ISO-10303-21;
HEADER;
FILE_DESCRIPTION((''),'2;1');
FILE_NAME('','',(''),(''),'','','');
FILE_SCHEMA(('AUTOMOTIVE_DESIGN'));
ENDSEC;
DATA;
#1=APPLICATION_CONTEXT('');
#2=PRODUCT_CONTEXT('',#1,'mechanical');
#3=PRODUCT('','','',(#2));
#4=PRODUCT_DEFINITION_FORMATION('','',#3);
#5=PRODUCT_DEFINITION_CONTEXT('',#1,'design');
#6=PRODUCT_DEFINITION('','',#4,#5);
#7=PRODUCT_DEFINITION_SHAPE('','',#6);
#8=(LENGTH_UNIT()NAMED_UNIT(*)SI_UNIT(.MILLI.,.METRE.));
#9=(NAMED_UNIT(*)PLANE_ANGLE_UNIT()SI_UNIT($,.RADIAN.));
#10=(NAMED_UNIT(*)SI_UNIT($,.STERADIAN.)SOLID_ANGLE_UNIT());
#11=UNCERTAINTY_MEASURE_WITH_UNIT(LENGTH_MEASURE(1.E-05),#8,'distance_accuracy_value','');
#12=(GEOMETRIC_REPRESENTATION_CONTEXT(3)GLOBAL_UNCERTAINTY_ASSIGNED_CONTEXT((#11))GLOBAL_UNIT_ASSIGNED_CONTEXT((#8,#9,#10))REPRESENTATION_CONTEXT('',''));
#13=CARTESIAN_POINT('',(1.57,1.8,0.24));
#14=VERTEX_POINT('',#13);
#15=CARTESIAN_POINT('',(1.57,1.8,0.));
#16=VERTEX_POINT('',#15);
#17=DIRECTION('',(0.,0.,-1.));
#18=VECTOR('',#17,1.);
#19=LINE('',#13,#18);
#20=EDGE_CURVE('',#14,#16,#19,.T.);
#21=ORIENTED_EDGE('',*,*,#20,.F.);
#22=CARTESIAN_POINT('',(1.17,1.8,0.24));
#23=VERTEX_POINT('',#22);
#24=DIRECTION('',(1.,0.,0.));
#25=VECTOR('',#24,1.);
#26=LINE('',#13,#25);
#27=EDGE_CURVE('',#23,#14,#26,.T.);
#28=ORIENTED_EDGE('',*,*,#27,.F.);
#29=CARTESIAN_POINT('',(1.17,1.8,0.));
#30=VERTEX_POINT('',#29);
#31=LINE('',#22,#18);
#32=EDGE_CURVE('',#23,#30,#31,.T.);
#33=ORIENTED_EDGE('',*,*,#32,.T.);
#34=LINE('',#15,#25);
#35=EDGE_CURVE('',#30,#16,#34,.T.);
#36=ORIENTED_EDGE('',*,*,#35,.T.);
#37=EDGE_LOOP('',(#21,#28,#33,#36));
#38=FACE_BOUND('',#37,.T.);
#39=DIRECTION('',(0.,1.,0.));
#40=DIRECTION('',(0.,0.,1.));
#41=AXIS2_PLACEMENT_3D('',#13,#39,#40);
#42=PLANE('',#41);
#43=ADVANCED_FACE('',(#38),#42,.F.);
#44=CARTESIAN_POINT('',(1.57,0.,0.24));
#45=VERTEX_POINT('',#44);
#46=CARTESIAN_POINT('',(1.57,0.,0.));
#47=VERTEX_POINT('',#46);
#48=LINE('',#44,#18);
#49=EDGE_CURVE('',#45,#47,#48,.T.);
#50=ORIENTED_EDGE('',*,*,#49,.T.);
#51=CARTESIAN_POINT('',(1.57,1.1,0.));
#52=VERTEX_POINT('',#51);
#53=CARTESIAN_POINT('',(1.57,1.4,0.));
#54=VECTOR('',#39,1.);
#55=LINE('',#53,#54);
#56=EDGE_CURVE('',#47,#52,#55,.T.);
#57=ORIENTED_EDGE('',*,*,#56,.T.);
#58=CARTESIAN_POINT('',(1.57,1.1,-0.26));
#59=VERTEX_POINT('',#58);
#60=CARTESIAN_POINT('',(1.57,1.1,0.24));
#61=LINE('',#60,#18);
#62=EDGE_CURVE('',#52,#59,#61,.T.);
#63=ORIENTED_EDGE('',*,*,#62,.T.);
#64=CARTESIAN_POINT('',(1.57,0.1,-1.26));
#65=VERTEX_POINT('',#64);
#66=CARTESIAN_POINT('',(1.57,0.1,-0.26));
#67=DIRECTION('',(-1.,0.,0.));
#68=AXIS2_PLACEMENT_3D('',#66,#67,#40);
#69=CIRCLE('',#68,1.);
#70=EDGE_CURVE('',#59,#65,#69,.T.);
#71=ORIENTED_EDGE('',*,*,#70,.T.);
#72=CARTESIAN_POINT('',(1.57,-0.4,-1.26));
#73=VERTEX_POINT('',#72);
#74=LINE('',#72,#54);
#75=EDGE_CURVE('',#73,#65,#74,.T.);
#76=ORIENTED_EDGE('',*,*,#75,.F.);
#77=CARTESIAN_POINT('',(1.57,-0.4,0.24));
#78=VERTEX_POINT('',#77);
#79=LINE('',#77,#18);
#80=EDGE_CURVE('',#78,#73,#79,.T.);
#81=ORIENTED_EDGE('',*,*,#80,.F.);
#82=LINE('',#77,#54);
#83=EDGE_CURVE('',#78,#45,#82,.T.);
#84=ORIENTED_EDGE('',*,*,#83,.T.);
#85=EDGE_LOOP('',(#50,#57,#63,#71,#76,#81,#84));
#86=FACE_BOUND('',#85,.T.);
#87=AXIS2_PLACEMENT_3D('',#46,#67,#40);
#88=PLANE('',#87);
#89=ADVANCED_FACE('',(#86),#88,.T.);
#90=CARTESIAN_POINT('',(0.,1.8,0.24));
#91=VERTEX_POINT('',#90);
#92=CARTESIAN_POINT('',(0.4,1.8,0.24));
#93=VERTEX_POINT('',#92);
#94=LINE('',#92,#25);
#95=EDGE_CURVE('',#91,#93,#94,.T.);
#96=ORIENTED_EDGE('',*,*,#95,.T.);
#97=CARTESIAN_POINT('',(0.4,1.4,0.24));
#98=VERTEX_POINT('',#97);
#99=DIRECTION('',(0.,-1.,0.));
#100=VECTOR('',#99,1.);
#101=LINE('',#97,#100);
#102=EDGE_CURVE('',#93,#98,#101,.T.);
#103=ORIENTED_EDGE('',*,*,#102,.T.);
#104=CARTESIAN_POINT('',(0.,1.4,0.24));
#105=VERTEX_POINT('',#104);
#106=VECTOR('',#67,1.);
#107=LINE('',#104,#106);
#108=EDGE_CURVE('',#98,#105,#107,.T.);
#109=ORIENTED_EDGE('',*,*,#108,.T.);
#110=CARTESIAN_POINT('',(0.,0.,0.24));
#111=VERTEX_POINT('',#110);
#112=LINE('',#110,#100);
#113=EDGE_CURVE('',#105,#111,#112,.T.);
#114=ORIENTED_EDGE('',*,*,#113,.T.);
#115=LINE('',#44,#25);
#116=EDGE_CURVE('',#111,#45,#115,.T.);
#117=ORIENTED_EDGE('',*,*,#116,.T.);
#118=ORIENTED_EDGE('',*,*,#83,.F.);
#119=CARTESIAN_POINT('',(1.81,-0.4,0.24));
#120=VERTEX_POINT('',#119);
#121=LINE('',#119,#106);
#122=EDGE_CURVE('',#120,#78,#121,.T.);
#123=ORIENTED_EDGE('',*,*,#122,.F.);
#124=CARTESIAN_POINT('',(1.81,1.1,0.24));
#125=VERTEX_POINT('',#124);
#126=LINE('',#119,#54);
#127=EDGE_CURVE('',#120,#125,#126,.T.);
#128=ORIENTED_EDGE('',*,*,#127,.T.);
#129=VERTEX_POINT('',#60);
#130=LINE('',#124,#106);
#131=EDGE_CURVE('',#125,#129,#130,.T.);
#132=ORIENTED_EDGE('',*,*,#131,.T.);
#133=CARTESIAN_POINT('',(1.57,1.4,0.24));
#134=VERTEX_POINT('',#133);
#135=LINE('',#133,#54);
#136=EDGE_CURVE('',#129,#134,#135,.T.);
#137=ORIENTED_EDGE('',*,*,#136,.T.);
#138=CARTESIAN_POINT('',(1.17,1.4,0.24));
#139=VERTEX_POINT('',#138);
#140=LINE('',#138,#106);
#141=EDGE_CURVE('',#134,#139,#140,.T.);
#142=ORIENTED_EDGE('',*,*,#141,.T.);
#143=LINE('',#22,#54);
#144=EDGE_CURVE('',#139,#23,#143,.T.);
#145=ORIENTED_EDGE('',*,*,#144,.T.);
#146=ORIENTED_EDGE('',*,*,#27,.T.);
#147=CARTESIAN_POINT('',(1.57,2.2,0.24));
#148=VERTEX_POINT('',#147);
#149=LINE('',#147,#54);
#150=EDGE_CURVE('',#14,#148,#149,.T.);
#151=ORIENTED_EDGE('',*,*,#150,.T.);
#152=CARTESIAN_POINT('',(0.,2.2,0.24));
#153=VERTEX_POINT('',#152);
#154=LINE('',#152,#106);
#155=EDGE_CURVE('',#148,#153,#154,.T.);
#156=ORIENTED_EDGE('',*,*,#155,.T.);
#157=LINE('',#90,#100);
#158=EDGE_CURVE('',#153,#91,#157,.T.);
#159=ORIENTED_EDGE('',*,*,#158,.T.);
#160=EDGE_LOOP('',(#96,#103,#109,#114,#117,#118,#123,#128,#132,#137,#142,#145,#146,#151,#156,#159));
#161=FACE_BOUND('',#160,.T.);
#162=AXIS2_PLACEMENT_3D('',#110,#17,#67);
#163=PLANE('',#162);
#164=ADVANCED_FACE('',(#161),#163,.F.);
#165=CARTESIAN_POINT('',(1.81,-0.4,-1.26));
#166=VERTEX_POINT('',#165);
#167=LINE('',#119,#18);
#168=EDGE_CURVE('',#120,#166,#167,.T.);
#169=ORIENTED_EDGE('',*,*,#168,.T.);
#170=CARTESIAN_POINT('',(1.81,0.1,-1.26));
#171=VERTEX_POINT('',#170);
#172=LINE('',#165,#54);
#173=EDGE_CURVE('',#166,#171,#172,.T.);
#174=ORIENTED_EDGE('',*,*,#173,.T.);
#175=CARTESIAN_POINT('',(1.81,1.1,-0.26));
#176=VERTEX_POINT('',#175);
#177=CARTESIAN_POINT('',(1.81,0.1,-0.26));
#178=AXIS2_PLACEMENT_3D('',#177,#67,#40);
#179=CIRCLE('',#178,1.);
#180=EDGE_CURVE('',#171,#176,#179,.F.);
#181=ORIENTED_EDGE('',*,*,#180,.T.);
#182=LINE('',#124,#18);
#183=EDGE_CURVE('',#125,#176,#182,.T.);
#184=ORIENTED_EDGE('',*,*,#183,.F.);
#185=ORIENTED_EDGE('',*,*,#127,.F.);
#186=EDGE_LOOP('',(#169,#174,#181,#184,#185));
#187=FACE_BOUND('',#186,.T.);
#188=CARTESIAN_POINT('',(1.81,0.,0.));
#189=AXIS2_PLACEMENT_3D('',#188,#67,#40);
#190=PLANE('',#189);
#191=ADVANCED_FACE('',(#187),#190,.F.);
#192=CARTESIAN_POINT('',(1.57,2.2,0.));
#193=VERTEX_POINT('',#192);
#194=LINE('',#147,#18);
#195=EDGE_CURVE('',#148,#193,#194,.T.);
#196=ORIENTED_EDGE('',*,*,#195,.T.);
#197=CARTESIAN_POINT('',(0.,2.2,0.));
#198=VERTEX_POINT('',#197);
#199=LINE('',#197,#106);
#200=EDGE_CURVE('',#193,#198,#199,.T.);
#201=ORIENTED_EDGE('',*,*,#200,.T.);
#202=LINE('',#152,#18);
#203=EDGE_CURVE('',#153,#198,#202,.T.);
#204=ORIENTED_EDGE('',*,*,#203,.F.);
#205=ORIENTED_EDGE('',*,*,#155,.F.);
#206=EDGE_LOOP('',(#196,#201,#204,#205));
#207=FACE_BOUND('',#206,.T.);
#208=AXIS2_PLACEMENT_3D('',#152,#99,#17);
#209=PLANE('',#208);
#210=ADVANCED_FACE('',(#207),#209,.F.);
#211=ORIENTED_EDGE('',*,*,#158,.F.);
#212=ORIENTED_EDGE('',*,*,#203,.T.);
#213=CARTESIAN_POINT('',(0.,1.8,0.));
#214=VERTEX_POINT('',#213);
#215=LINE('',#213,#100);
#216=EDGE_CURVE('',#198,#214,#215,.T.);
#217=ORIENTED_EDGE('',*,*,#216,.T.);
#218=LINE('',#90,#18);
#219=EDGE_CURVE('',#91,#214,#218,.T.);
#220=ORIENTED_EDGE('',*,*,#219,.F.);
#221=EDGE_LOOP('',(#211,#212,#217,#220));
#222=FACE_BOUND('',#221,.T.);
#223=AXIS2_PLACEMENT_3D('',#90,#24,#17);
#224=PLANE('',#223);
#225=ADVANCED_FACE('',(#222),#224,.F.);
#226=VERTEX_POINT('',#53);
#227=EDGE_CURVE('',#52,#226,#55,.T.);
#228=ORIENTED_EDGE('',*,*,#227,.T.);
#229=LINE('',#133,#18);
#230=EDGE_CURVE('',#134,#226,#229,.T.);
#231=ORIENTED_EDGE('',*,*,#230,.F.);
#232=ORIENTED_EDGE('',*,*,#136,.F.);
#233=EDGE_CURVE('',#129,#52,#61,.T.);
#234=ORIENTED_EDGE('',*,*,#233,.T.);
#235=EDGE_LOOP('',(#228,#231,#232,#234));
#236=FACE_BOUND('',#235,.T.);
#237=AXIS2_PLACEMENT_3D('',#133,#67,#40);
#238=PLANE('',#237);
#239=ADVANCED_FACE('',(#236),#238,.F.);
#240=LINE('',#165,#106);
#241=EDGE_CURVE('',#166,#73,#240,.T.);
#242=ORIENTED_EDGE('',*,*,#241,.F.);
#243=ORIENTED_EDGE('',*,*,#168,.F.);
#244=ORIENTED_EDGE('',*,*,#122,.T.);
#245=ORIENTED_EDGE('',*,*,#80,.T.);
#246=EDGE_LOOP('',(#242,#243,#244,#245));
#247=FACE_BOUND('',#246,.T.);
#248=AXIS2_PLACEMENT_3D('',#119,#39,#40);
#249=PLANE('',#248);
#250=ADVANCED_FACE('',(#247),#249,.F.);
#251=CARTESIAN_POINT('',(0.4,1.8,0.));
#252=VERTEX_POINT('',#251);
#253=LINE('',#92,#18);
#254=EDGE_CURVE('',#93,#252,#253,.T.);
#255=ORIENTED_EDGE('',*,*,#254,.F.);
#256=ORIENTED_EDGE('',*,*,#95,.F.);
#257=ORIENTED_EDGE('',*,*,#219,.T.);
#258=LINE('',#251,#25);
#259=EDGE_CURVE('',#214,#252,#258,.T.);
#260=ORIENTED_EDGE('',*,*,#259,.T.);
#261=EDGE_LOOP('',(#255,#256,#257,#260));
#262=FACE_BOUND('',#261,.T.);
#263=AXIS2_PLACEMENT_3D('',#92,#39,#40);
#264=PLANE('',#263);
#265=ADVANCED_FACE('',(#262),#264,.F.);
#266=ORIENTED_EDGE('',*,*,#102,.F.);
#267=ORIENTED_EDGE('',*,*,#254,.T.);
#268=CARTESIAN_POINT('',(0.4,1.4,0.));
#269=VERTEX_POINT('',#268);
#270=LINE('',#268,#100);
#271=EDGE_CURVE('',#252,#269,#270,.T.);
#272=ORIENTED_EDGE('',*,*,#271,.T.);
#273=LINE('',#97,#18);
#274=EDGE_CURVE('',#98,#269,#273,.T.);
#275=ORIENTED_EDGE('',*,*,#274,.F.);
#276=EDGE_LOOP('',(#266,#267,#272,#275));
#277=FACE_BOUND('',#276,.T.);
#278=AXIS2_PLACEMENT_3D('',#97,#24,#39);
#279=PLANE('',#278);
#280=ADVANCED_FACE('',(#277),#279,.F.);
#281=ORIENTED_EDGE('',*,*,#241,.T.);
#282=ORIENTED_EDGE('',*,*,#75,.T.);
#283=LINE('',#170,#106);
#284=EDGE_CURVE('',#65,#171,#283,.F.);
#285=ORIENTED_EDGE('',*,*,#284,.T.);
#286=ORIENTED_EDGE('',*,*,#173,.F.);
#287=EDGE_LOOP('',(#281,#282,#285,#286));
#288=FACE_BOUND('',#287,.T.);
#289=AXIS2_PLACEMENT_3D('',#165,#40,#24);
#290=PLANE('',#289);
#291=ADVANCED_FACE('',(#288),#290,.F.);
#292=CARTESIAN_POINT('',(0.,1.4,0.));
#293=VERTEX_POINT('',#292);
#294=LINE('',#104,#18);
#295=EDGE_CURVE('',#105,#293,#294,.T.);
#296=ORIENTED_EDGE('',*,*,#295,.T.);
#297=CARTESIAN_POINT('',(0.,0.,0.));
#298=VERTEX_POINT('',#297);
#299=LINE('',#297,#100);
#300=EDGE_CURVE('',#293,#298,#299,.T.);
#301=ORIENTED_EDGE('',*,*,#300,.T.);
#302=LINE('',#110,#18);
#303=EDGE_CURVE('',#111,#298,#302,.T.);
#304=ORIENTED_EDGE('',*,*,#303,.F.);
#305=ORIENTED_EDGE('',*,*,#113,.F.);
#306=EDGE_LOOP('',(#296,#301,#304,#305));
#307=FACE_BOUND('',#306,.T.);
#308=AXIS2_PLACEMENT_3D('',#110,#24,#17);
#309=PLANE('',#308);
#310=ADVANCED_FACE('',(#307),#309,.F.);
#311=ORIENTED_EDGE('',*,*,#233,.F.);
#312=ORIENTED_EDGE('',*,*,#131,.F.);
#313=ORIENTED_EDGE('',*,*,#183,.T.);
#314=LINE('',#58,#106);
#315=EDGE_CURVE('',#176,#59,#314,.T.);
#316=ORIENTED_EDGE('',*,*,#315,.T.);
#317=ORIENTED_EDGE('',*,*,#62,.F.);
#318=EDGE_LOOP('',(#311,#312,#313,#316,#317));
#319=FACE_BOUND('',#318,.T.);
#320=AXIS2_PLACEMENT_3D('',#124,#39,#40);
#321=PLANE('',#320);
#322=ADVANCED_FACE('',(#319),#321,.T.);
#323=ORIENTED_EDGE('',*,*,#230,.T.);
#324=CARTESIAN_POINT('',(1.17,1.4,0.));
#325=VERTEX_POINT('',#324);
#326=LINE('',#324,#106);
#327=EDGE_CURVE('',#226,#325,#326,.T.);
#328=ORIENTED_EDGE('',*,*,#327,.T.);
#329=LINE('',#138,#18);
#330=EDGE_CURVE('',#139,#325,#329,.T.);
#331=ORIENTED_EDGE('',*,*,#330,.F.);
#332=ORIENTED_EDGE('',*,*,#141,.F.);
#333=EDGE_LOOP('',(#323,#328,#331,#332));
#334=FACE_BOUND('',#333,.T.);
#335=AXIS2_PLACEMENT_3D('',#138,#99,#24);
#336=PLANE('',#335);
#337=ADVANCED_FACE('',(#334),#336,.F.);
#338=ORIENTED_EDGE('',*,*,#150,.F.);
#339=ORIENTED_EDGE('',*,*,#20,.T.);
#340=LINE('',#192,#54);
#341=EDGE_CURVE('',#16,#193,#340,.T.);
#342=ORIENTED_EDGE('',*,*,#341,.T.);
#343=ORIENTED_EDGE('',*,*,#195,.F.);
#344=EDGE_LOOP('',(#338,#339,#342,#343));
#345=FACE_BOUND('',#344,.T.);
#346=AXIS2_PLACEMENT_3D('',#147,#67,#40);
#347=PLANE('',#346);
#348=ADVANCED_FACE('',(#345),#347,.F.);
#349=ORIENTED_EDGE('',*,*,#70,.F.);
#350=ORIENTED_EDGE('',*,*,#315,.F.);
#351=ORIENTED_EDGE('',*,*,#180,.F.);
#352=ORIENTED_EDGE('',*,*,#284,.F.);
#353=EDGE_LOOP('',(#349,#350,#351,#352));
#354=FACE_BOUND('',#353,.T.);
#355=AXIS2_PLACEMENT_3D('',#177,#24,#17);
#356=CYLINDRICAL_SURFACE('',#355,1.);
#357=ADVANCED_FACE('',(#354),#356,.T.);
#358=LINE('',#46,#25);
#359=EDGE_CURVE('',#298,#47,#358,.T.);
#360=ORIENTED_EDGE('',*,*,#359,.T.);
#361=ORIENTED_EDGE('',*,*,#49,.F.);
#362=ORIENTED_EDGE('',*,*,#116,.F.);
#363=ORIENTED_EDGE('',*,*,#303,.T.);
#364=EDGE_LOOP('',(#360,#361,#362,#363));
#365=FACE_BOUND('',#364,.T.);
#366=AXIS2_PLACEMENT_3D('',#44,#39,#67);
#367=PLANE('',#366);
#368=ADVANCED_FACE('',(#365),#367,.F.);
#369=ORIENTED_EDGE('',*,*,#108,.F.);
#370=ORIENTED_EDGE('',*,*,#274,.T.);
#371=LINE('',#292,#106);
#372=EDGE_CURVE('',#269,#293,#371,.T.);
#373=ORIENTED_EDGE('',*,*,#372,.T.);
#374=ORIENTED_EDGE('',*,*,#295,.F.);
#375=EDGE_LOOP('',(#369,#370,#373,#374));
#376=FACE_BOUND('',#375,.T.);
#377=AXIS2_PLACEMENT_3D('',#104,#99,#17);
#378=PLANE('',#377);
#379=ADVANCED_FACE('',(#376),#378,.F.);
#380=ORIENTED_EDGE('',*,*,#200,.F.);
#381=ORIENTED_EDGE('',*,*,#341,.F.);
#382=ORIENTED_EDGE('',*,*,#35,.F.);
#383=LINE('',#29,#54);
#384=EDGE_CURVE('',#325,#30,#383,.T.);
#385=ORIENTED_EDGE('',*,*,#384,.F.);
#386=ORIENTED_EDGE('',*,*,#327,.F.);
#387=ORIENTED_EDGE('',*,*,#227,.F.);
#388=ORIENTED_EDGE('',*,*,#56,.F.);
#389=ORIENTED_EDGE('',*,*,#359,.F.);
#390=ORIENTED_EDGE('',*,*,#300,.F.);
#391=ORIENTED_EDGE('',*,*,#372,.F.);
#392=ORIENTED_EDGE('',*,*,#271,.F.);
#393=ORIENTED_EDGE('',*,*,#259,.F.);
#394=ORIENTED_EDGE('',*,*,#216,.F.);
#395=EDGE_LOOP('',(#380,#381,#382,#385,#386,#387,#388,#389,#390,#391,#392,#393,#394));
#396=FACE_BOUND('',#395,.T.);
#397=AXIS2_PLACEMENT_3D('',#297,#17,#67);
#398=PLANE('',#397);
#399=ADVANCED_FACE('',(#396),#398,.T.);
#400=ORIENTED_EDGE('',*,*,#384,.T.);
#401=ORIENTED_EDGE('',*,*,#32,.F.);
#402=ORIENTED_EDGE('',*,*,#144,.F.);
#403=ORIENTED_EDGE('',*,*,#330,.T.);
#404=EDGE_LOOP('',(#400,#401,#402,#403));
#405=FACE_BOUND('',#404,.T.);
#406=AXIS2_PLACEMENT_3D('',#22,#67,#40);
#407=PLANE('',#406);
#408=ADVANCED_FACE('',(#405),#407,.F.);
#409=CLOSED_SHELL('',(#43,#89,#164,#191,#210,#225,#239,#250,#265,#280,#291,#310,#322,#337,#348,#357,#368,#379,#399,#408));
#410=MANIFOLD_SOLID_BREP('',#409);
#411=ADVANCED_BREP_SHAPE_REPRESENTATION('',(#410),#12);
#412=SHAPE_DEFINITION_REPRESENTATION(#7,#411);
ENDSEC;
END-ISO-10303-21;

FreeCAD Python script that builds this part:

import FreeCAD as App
import Part
import Sketcher

V = App.Vector


def edges_at(feature, points):
    """Names of the edges that pass closest to the given points."""
    edges = feature.Shape.Edges
    near = lambda p: min(range(len(edges)), key=lambda i: edges[i].distToShape(Part.Vertex(*p))[0])
    return sorted({f"Edge{near(p) + 1}" for p in points})


def add_polygon(sketch, points):
    """Adds a closed chain of lines whose ends are joined by coincident constraints."""
    first, n = sketch.GeometryCount, len(points)
    for a, b in zip(points, points[1:] + points[:1]):
        sketch.addGeometry(Part.LineSegment(App.Vector(*a, 0), App.Vector(*b, 0)), False)
    for i in range(n):
        sketch.addConstraint(Sketcher.Constraint("Coincident", first + i, 2, first + (i + 1) % n, 1))

doc = App.newDocument("Part")
body = doc.addObject("PartDesign::Body", "Body")

sketch1 = doc.addObject("Sketcher::SketchObject", "Sketch")
body.addObject(sketch1)
sketch1.AttachmentSupport = (doc.XY_Plane, [""])
sketch1.MapMode = "FlatFace"
add_polygon(sketch1, [(0, 1.4), (0, 0), (1.57, 0), (1.57, 1.4), (1.17, 1.4), (1.17, 1.8), (1.57, 1.8), (1.57, 2.2), (0, 2.2), (0, 1.8), (0.4, 1.8), (0.4, 1.4)])
sketch1.addConstraint([
    Sketcher.Constraint("Vertical", 0),
    Sketcher.Constraint("Horizontal", 1),
    Sketcher.Constraint("Vertical", 2),
    Sketcher.Constraint("Horizontal", 3),
    Sketcher.Constraint("Vertical", 4),
    Sketcher.Constraint("Horizontal", 5),
    Sketcher.Constraint("Vertical", 6),
    Sketcher.Constraint("Horizontal", 7),
    Sketcher.Constraint("Vertical", 8),
    Sketcher.Constraint("Horizontal", 9),
    Sketcher.Constraint("Vertical", 10),
    Sketcher.Constraint("Horizontal", 11),
    Sketcher.Constraint("Coincident", 0, 2, -1, 1),
    Sketcher.Constraint("PointOnObject", 7, 2, -2),
    Sketcher.Constraint("Horizontal", 5, 2, 8, 2),
    Sketcher.Constraint("Horizontal", 3, 2, 10, 2),
    Sketcher.Constraint("Vertical", 2, 2, 5, 2),
    Sketcher.Constraint("Equal", 5, 9),
    Sketcher.Constraint("Equal", 11, 4),
    Sketcher.Constraint("Equal", 4, 6),
    Sketcher.Constraint("DistanceX", 3, 2, 3, 1, 0.4),
    Sketcher.Constraint("DistanceY", 0, 2, 0, 1, 1.4),
    Sketcher.Constraint("DistanceX", 1, 1, 1, 2, 1.57),
])
pad1 = doc.addObject("PartDesign::Pad", "Pad")
body.addObject(pad1)
pad1.Profile = sketch1
pad1.Length = 0.24

sketch2 = doc.addObject("Sketcher::SketchObject", "Sketch001")
body.addObject(sketch2)
sketch2.AttachmentSupport = (doc.YZ_Plane, [""])
sketch2.MapMode = "FlatFace"
sketch2.AttachmentOffset = App.Placement(V(0, 0, 1.57), App.Rotation())
add_polygon(sketch2, [(1.1, 0.2), (-0.4, 0.2), (-0.4, -1.3), (1.1, -1.3)])
sketch2.addConstraint([
    Sketcher.Constraint("Horizontal", 0),
    Sketcher.Constraint("Vertical", 1),
    Sketcher.Constraint("Horizontal", 2),
    Sketcher.Constraint("Vertical", 3),
    Sketcher.Constraint("Equal", 2, 1),
    Sketcher.Constraint("DistanceX", 0, 2, 0, 1, 1.5),
    Sketcher.Constraint("DistanceX", 0, 2, -1, 1, 0.4),
    Sketcher.Constraint("DistanceY", -1, 1, 0, 2, 0.24),
])
pad2 = doc.addObject("PartDesign::Pad", "Pad001")
body.addObject(pad2)
pad2.Profile = sketch2
pad2.Length = 0.24
doc.recompute()

fillet = doc.addObject("PartDesign::Fillet", "Fillet")
body.addObject(fillet)
fillet.Base = (pad2, edges_at(pad2, [(1.69, 1.1, -1.26)]))
fillet.Radius = 1

doc.recompute()
